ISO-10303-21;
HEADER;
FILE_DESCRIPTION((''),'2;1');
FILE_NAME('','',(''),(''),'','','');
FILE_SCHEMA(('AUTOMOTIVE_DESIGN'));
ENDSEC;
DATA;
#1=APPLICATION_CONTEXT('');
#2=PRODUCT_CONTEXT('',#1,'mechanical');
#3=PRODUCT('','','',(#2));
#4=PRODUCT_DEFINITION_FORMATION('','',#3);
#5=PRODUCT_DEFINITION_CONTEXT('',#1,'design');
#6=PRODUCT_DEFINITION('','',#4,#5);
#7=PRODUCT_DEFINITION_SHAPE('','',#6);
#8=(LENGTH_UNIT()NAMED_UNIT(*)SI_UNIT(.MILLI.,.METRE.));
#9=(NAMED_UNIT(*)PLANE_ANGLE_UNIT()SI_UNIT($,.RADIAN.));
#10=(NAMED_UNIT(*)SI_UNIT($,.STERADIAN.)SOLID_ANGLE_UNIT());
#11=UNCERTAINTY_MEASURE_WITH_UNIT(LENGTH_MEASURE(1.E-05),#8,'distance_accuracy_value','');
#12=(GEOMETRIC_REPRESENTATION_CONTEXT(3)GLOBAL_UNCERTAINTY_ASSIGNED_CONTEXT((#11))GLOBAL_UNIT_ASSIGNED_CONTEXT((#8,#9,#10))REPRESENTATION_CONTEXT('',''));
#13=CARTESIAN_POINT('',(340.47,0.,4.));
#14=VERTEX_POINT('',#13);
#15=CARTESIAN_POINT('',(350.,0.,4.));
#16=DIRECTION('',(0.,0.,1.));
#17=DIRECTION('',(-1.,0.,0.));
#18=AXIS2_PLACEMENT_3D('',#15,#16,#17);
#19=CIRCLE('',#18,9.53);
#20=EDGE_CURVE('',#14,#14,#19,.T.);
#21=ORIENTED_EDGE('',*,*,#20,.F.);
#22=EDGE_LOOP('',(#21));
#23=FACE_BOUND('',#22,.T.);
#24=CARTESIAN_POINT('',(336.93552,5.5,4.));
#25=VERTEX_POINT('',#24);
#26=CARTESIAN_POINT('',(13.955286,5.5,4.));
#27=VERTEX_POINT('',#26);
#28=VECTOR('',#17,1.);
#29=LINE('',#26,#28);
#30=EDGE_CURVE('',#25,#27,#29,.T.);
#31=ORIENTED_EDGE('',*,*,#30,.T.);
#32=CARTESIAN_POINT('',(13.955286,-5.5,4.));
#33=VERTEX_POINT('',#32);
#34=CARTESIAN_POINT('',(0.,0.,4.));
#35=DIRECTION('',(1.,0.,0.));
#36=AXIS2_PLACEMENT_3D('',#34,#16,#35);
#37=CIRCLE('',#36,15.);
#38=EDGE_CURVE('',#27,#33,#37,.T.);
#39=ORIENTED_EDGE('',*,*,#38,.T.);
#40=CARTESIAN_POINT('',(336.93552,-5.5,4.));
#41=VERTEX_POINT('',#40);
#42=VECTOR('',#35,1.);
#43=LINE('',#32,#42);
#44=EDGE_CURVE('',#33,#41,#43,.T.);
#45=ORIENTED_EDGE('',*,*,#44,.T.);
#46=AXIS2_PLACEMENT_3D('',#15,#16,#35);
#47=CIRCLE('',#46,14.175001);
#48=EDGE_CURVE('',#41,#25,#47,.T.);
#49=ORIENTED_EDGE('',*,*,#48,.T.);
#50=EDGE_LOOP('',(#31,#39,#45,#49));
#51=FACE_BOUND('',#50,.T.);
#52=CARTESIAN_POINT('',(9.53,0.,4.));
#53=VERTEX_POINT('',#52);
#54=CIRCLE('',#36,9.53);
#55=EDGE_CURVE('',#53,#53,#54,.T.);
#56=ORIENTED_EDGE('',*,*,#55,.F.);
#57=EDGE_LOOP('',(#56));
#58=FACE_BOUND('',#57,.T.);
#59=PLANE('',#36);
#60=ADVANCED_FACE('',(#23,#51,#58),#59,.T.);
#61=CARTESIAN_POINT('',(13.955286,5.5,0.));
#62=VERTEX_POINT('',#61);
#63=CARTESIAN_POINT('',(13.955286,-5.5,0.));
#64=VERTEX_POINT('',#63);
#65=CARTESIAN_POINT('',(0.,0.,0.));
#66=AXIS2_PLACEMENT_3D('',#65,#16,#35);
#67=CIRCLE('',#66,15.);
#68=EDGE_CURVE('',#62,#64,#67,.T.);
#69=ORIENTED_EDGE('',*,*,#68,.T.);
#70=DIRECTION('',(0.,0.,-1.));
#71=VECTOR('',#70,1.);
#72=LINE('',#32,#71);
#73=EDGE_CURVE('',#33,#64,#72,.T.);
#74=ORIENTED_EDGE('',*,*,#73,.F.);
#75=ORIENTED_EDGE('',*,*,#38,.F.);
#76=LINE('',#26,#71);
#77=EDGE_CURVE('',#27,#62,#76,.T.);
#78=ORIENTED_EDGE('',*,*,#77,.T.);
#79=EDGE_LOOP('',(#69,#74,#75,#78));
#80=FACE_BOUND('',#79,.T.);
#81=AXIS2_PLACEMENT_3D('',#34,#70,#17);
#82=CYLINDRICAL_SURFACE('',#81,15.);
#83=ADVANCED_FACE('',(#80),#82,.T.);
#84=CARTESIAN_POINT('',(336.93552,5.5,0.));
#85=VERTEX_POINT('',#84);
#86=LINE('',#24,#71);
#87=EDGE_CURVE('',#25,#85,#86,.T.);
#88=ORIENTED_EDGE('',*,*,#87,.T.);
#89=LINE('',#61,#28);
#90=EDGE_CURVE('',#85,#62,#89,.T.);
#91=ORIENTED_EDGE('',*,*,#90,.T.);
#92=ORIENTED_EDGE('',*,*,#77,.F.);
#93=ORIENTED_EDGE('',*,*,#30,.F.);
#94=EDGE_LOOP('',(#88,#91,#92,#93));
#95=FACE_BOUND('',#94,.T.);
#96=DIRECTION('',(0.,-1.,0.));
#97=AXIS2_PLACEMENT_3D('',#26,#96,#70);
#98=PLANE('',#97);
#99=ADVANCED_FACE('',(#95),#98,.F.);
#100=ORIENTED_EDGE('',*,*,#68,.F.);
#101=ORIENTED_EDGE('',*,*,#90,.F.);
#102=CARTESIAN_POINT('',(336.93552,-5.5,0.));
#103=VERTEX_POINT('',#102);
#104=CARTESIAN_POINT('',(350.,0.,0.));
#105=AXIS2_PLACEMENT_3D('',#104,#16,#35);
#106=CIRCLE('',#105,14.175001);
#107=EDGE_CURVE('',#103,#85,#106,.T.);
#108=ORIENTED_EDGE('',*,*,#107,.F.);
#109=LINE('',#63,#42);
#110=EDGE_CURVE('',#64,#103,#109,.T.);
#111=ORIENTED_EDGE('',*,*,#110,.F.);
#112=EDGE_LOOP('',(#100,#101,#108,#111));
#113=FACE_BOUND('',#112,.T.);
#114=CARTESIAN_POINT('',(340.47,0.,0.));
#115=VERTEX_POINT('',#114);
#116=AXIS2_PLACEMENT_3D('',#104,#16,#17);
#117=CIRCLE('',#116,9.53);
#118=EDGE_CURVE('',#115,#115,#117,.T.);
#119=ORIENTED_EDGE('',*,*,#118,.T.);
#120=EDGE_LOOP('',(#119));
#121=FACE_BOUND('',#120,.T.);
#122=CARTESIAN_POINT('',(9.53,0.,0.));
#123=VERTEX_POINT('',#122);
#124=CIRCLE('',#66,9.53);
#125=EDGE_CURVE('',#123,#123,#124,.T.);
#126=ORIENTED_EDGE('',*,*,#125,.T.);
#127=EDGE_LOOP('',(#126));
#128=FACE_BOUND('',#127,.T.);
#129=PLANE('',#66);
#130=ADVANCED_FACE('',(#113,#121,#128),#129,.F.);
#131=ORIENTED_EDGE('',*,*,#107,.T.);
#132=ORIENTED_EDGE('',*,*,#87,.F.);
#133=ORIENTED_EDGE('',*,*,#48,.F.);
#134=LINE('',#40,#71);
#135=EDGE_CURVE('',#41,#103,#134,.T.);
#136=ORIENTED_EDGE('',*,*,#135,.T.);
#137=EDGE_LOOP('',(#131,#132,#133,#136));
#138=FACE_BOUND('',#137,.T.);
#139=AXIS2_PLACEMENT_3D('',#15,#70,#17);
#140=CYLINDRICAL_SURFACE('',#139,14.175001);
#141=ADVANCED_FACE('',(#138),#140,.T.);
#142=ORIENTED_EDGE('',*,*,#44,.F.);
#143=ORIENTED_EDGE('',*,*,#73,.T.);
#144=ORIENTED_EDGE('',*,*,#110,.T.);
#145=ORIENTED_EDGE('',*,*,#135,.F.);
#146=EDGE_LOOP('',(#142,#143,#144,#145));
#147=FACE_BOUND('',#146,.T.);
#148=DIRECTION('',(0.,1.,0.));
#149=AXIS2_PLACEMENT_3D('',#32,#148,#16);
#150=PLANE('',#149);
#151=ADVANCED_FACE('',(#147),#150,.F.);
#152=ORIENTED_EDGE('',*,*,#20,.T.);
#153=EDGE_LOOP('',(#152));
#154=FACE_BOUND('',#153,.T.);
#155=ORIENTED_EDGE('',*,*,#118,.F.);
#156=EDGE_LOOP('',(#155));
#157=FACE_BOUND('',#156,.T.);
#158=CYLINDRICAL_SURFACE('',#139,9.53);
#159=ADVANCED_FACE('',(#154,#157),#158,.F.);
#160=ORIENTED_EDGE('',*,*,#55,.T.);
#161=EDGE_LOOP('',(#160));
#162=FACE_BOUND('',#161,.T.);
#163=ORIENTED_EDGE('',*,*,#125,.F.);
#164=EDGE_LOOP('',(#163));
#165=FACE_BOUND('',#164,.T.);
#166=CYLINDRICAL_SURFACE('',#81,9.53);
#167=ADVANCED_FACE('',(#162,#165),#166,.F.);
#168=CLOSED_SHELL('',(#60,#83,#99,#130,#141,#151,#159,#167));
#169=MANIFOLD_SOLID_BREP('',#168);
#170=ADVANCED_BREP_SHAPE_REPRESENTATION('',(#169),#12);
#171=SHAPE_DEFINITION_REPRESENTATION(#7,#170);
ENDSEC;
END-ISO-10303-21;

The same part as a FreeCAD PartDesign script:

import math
import FreeCAD as App
import Part
import Sketcher

V = App.Vector

doc = App.newDocument("Part")
body = doc.addObject("PartDesign::Body", "Body")

# Sketch on XY plane
sketch1 = doc.addObject("Sketcher::SketchObject", "Sketch")
body.addObject(sketch1)
sketch1.AttachmentSupport = (doc.XY_Plane, [""])
sketch1.MapMode = "FlatFace"
sketch1.addGeometry([
    Part.LineSegment(V(336.93552, 5.5, 0), V(13.955286, 5.5, 0)),  # 0
    Part.ArcOfCircle(Part.Circle(V(0, 0, 0), V(0, 0, 1), 15), math.radians(21.510188), math.radians(338.489812)),  # 1
    Part.LineSegment(V(13.955286, -5.5, 0), V(336.93552, -5.5, 0)),  # 2
    Part.ArcOfCircle(Part.Circle(V(350, 0, 0), V(0, 0, 1), 14.175001), math.radians(-157.169452), math.radians(157.169452)),  # 3
    Part.Circle(V(350, 0, 0), V(0, 0, 1), 9.53),  # 4
    Part.Circle(V(0, 0, 0), V(0, 0, 1), 9.53),  # 5
], False)
sketch1.addConstraint([
    Sketcher.Constraint("Coincident", 0, 2, 1, 1),
    Sketcher.Constraint("Coincident", 1, 2, 2, 1),
    Sketcher.Constraint("Coincident", 2, 2, 3, 1),
    Sketcher.Constraint("Coincident", 3, 2, 0, 1),
    Sketcher.Constraint("Horizontal", 0),
    Sketcher.Constraint("Horizontal", 2),
    Sketcher.Constraint("Coincident", 1, 3, -1, 1),
    Sketcher.Constraint("Coincident", 5, 3, -1, 1),
    Sketcher.Constraint("Coincident", 4, 3, 3, 3),
    Sketcher.Constraint("Equal", 4, 5),
    Sketcher.Constraint("Symmetric", 2, 2, 3, 2, -1),
    Sketcher.Constraint("Radius", 1, 15.0),
    Sketcher.Constraint("Diameter", 4, 19.06),
    Sketcher.Constraint("DistanceX", -1, 1, 3, 3, 350.0),
    Sketcher.Constraint("Radius", 3, 14.175001),
    Sketcher.Constraint("DistanceY", 1, 2, 0, 2, 11.0),
])
pad1 = doc.addObject("PartDesign::Pad", "Pad")
body.addObject(pad1)
pad1.Profile = sketch1
pad1.Length = 4

doc.recompute()
